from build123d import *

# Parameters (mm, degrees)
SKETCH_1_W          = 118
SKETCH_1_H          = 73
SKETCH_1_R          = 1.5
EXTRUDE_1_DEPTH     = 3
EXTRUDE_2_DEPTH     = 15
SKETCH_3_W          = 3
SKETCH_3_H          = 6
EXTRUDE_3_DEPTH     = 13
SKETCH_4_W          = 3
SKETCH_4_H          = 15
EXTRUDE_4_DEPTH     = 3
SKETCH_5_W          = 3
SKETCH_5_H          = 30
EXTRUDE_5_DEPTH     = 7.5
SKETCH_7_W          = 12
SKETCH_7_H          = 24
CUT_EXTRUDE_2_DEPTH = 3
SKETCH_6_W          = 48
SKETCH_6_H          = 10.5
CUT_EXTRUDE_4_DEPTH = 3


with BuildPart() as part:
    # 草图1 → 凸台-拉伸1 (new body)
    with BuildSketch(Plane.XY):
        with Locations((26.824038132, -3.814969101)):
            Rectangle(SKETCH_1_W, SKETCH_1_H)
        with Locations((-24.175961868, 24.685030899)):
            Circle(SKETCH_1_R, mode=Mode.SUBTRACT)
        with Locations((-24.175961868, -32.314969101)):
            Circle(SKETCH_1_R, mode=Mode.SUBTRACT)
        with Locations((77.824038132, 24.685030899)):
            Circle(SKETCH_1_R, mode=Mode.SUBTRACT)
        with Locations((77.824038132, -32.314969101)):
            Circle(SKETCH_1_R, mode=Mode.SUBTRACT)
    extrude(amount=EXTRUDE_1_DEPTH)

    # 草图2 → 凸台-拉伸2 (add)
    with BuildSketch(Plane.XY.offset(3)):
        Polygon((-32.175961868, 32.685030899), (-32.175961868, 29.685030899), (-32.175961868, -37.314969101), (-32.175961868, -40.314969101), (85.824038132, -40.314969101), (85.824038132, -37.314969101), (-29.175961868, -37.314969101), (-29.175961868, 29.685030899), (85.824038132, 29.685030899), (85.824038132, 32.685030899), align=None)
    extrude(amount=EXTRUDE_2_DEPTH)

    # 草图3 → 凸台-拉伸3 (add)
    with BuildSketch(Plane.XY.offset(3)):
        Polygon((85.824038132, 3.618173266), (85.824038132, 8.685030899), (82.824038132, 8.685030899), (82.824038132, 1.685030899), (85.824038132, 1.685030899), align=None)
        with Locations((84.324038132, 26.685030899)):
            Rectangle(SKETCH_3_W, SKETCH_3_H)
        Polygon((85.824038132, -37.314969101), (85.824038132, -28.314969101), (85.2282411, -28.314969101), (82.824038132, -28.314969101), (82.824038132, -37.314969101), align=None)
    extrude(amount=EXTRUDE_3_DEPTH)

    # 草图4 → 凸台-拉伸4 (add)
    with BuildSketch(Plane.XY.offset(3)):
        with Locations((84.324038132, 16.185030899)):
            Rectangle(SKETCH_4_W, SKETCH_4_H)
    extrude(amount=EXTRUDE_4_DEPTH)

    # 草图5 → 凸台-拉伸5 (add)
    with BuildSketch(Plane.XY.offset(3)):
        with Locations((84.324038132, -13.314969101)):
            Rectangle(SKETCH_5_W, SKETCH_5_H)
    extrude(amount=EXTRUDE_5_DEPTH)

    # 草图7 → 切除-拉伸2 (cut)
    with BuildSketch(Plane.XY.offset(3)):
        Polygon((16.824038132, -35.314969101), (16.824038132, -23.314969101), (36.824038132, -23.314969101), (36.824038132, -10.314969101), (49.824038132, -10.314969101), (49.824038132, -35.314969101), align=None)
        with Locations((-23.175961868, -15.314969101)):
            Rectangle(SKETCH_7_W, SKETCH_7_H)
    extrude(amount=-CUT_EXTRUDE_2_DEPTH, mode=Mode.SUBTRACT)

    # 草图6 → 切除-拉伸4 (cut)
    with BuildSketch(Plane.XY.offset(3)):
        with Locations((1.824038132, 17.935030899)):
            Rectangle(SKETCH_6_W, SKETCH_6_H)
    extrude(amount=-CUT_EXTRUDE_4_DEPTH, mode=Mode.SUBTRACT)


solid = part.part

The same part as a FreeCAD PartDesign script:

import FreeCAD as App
import Part
import Sketcher
Q = App.Units.Quantity

doc = App.newDocument("Part")
params = doc.addObject("Spreadsheet::Sheet", "Params")
for row, (alias, value) in enumerate([
    ("sketch1_diameter", "3 mm"),
    ("sketch1_width", "118 mm"),
    ("sketch1_height", "73 mm"),
    ("pad1_length", "3 mm"),
    ("sketch2_width", "118 mm"),
    ("sketch2_width2", "115 mm"),
    ("sketch2_height", "73 mm"),
    ("sketch2_height2", "3 mm"),
    ("pad2_length", "15 mm"),
    ("sketch3_width", "3 mm"),
    ("sketch3_height", "7 mm"),
    ("sketch3_height2", "6 mm"),
    ("sketch3_height3", "9 mm"),
    ("pad3_length", "13 mm"),
    ("sketch4_width", "3 mm"),
    ("sketch4_height", "15 mm"),
    ("pad4_length", "3 mm"),
    ("sketch5_width", "3 mm"),
    ("sketch5_height", "30 mm"),
    ("pad5_length", "7.5 mm"),
    ("sketch6_width", "33 mm"),
    ("sketch6_width2", "13 mm"),
    ("sketch6_width3", "12 mm"),
    ("sketch6_height", "24 mm"),
    ("pocket1_length", "3 mm"),
    ("sketch7_width", "48 mm"),
    ("sketch7_height", "10.5 mm"),
    ("pocket2_length", "3 mm"),
], start=1):
    params.set(f"A{row}", alias)
    params.set(f"B{row}", "=" + value)
    params.setAlias(f"B{row}", alias)

body = doc.addObject("PartDesign::Body", "Body")

sketch1 = body.newObject("Sketcher::SketchObject", "Sketch")
sketch1.AttachmentSupport = (doc.getObject("XY_Plane"), [""])
sketch1.MapMode = "FlatFace"
sketch1.addGeometry([
    Part.LineSegment(App.Vector(-32.2, 32.7, 0), App.Vector(-32.2, -40.3, 0)),
    Part.LineSegment(App.Vector(-32.2, -40.3, 0), App.Vector(85.8, -40.3, 0)),
    Part.LineSegment(App.Vector(85.8, -40.3, 0), App.Vector(85.8, 32.7, 0)),
    Part.LineSegment(App.Vector(85.8, 32.7, 0), App.Vector(-32.2, 32.7, 0)),
    Part.Circle(App.Vector(-24.2, -32.3, 0), App.Vector(0, 0, 1), 1.5),
    Part.Circle(App.Vector(77.8, -32.3, 0), App.Vector(0, 0, 1), 1.5),
    Part.Circle(App.Vector(-24.2, 24.7, 0), App.Vector(0, 0, 1), 1.5),
    Part.Circle(App.Vector(77.8, 24.7, 0), App.Vector(0, 0, 1), 1.5),
], False)
sketch1.addConstraint([
    Sketcher.Constraint("Coincident", 0, 2, 1, 1),
    Sketcher.Constraint("Coincident", 1, 2, 2, 1),
    Sketcher.Constraint("Coincident", 2, 2, 3, 1),
    Sketcher.Constraint("Coincident", 3, 2, 0, 1),
    Sketcher.Constraint("Vertical", 0),
    Sketcher.Constraint("Horizontal", 1),
    Sketcher.Constraint("Vertical", 2),
    Sketcher.Constraint("Horizontal", 3),
    Sketcher.Constraint("Equal", 4, 5),
    Sketcher.Constraint("Equal", 5, 6),
    Sketcher.Constraint("Equal", 6, 7),
    Sketcher.Constraint("Horizontal", 4, 3, 5, 3),
    Sketcher.Constraint("Horizontal", 6, 3, 7, 3),
    Sketcher.Constraint("Vertical", 4, 3, 6, 3),
    Sketcher.Constraint("Vertical", 5, 3, 7, 3),
    Sketcher.Constraint("Diameter", 4, Q("3 mm")),
    Sketcher.Constraint("DistanceX", 1, 1, 1, 2, Q("118 mm")),
    Sketcher.Constraint("DistanceY", 0, 2, 0, 1, Q("73 mm")),
    Sketcher.Constraint("DistanceX", 4, 3, 5, 3, Q("102 mm")),
    Sketcher.Constraint("DistanceY", 4, 3, 6, 3, Q("57 mm")),
    Sketcher.Constraint("DistanceX", 0, 2, 4, 3, Q("8 mm")),
    Sketcher.Constraint("DistanceY", 0, 2, 4, 3, Q("8 mm")),
    Sketcher.Constraint("DistanceX", 4, 3, -1, 1, Q("24.175962 mm")),
    Sketcher.Constraint("DistanceY", 4, 3, -1, 1, Q("32.314969 mm")),
])
sketch1.setExpression("Constraints[15]", "Params.sketch1_diameter")
sketch1.setExpression("Constraints[16]", "Params.sketch1_width")
sketch1.setExpression("Constraints[17]", "Params.sketch1_height")
pad1 = body.newObject("PartDesign::Pad", "Pad")
pad1.Profile = sketch1
pad1.setExpression("Length", "Params.pad1_length")

sketch2 = body.newObject("Sketcher::SketchObject", "Sketch001")
sketch2.AttachmentSupport = (doc.getObject("XY_Plane"), [""])
sketch2.MapMode = "FlatFace"
sketch2.AttachmentOffset = App.Placement(App.Vector(0, 0, 3), App.Rotation())
sketch2.addGeometry([
    Part.LineSegment(App.Vector(-32.2, 32.7, 0), App.Vector(-32.2, -40.3, 0)),
    Part.LineSegment(App.Vector(-32.2, -40.3, 0), App.Vector(85.8, -40.3, 0)),
    Part.LineSegment(App.Vector(85.8, -40.3, 0), App.Vector(85.8, -37.3, 0)),
    Part.LineSegment(App.Vector(85.8, -37.3, 0), App.Vector(-29.2, -37.3, 0)),
    Part.LineSegment(App.Vector(-29.2, -37.3, 0), App.Vector(-29.2, 29.7, 0)),
    Part.LineSegment(App.Vector(-29.2, 29.7, 0), App.Vector(85.8, 29.7, 0)),
    Part.LineSegment(App.Vector(85.8, 29.7, 0), App.Vector(85.8, 32.7, 0)),
    Part.LineSegment(App.Vector(85.8, 32.7, 0), App.Vector(-32.2, 32.7, 0)),
], False)
sketch2.addConstraint([
    Sketcher.Constraint("Coincident", 0, 2, 1, 1),
    Sketcher.Constraint("Coincident", 1, 2, 2, 1),
    Sketcher.Constraint("Coincident", 2, 2, 3, 1),
    Sketcher.Constraint("Coincident", 3, 2, 4, 1),
    Sketcher.Constraint("Coincident", 4, 2, 5, 1),
    Sketcher.Constraint("Coincident", 5, 2, 6, 1),
    Sketcher.Constraint("Coincident", 6, 2, 7, 1),
    Sketcher.Constraint("Coincident", 7, 2, 0, 1),
    Sketcher.Constraint("Vertical", 0),
    Sketcher.Constraint("Horizontal", 1),
    Sketcher.Constraint("Vertical", 2),
    Sketcher.Constraint("Horizontal", 3),
    Sketcher.Constraint("Vertical", 4),
    Sketcher.Constraint("Horizontal", 5),
    Sketcher.Constraint("Vertical", 6),
    Sketcher.Constraint("Horizontal", 7),
    Sketcher.Constraint("Vertical", 2, 2, 5, 2),
    Sketcher.Constraint("Equal", 2, 6),
    Sketcher.Constraint("DistanceX", 1, 1, 1, 2, Q("118 mm")),
    Sketcher.Constraint("DistanceX", 3, 2, 3, 1, Q("115 mm")),
    Sketcher.Constraint("DistanceY", 0, 2, 0, 1, Q("73 mm")),
    Sketcher.Constraint("DistanceY", 2, 1, 2, 2, Q("3 mm")),
    Sketcher.Constraint("DistanceX", 0, 2, -1, 1, Q("32.175962 mm")),
    Sketcher.Constraint("DistanceY", 0, 2, -1, 1, Q("40.314969 mm")),
])
sketch2.setExpression("Constraints[18]", "Params.sketch2_width")
sketch2.setExpression("Constraints[19]", "Params.sketch2_width2")
sketch2.setExpression("Constraints[20]", "Params.sketch2_height")
sketch2.setExpression("Constraints[21]", "Params.sketch2_height2")
pad2 = body.newObject("PartDesign::Pad", "Pad001")
pad2.Profile = sketch2
pad2.setExpression("Length", "Params.pad2_length")

sketch3 = body.newObject("Sketcher::SketchObject", "Sketch002")
sketch3.AttachmentSupport = (doc.getObject("XY_Plane"), [""])
sketch3.MapMode = "FlatFace"
sketch3.AttachmentOffset = App.Placement(App.Vector(0, 0, 3), App.Rotation())
sketch3.addGeometry([
    Part.LineSegment(App.Vector(85.8, 8.7, 0), App.Vector(82.8, 8.7, 0)),
    Part.LineSegment(App.Vector(82.8, 8.7, 0), App.Vector(82.8, 1.7, 0)),
    Part.LineSegment(App.Vector(82.8, 1.7, 0), App.Vector(85.8, 1.7, 0)),
    Part.LineSegment(App.Vector(85.8, 1.7, 0), App.Vector(85.8, 8.7, 0)),
    Part.LineSegment(App.Vector(82.8, 29.7, 0), App.Vector(82.8, 23.7, 0)),
    Part.LineSegment(App.Vector(82.8, 23.7, 0), App.Vector(85.8, 23.7, 0)),
    Part.LineSegment(App.Vector(85.8, 23.7, 0), App.Vector(85.8, 29.7, 0)),
    Part.LineSegment(App.Vector(85.8, 29.7, 0), App.Vector(82.8, 29.7, 0)),
    Part.LineSegment(App.Vector(85.8, -37.3, 0), App.Vector(85.8, -28.3, 0)),
    Part.LineSegment(App.Vector(85.8, -28.3, 0), App.Vector(82.8, -28.3, 0)),
    Part.LineSegment(App.Vector(82.8, -28.3, 0), App.Vector(82.8, -37.3, 0)),
    Part.LineSegment(App.Vector(82.8, -37.3, 0), App.Vector(85.8, -37.3, 0)),
], False)
sketch3.addConstraint([
    Sketcher.Constraint("Coincident", 0, 2, 1, 1),
    Sketcher.Constraint("Coincident", 1, 2, 2, 1),
    Sketcher.Constraint("Coincident", 2, 2, 3, 1),
    Sketcher.Constraint("Coincident", 3, 2, 0, 1),
    Sketcher.Constraint("Coincident", 4, 2, 5, 1),
    Sketcher.Constraint("Coincident", 5, 2, 6, 1),
    Sketcher.Constraint("Coincident", 6, 2, 7, 1),
    Sketcher.Constraint("Coincident", 7, 2, 4, 1),
    Sketcher.Constraint("Coincident", 8, 2, 9, 1),
    Sketcher.Constraint("Coincident", 9, 2, 10, 1),
    Sketcher.Constraint("Coincident", 10, 2, 11, 1),
    Sketcher.Constraint("Coincident", 11, 2, 8, 1),
    Sketcher.Constraint("Horizontal", 0),
    Sketcher.Constraint("Vertical", 1),
    Sketcher.Constraint("Horizontal", 2),
    Sketcher.Constraint("Vertical", 3),
    Sketcher.Constraint("Vertical", 4),
    Sketcher.Constraint("Horizontal", 5),
    Sketcher.Constraint("Vertical", 6),
    Sketcher.Constraint("Horizontal", 7),
    Sketcher.Constraint("Vertical", 8),
    Sketcher.Constraint("Horizontal", 9),
    Sketcher.Constraint("Vertical", 10),
    Sketcher.Constraint("Horizontal", 11),
    Sketcher.Constraint("Vertical", 1, 2, 4, 2),
    Sketcher.Constraint("Vertical", 3, 2, 5, 2),
    Sketcher.Constraint("Vertical", 6, 2, 8, 2),
    Sketcher.Constraint("Vertical", 7, 2, 9, 2),
    Sketcher.Constraint("DistanceX", 0, 2, 0, 1, Q("3 mm")),
    Sketcher.Constraint("DistanceY", 1, 2, 1, 1, Q("7 mm")),
    Sketcher.Constraint("DistanceY", 4, 2, 4, 1, Q("6 mm")),
    Sketcher.Constraint("DistanceY", 8, 1, 8, 2, Q("9 mm")),
    Sketcher.Constraint("DistanceY", 0, 2, 4, 2, Q("15 mm")),
    Sketcher.Constraint("DistanceY", 8, 2, 2, 2, Q("30 mm")),
    Sketcher.Constraint("DistanceX", -1, 1, 0, 2, Q("82.824038 mm")),
    Sketcher.Constraint("DistanceY", -1, 1, 0, 2, Q("8.685031 mm")),
])
sketch3.setExpression("Constraints[28]", "Params.sketch3_width")
sketch3.setExpression("Constraints[29]", "Params.sketch3_height")
sketch3.setExpression("Constraints[30]", "Params.sketch3_height2")
sketch3.setExpression("Constraints[31]", "Params.sketch3_height3")
pad3 = body.newObject("PartDesign::Pad", "Pad002")
pad3.Profile = sketch3
pad3.setExpression("Length", "Params.pad3_length")

sketch4 = body.newObject("Sketcher::SketchObject", "Sketch003")
sketch4.AttachmentSupport = (doc.getObject("XY_Plane"), [""])
sketch4.MapMode = "FlatFace"
sketch4.AttachmentOffset = App.Placement(App.Vector(0, 0, 3), App.Rotation())
sketch4.addGeometry([
    Part.LineSegment(App.Vector(82.8, 23.7, 0), App.Vector(82.8, 8.7, 0)),
    Part.LineSegment(App.Vector(82.8, 8.7, 0), App.Vector(85.8, 8.7, 0)),
    Part.LineSegment(App.Vector(85.8, 8.7, 0), App.Vector(85.8, 23.7, 0)),
    Part.LineSegment(App.Vector(85.8, 23.7, 0), App.Vector(82.8, 23.7, 0)),
], False)
sketch4.addConstraint([
    Sketcher.Constraint("Coincident", 0, 2, 1, 1),
    Sketcher.Constraint("Coincident", 1, 2, 2, 1),
    Sketcher.Constraint("Coincident", 2, 2, 3, 1),
    Sketcher.Constraint("Coincident", 3, 2, 0, 1),
    Sketcher.Constraint("Vertical", 0),
    Sketcher.Constraint("Horizontal", 1),
    Sketcher.Constraint("Vertical", 2),
    Sketcher.Constraint("Horizontal", 3),
    Sketcher.Constraint("DistanceX", 1, 1, 1, 2, Q("3 mm")),
    Sketcher.Constraint("DistanceY", 0, 2, 0, 1, Q("15 mm")),
    Sketcher.Constraint("DistanceX", -1, 1, 0, 2, Q("82.824038 mm")),
    Sketcher.Constraint("DistanceY", -1, 1, 0, 2, Q("8.685031 mm")),
])
sketch4.setExpression("Constraints[8]", "Params.sketch4_width")
sketch4.setExpression("Constraints[9]", "Params.sketch4_height")
pad4 = body.newObject("PartDesign::Pad", "Pad003")
pad4.Profile = sketch4
pad4.setExpression("Length", "Params.pad4_length")

sketch5 = body.newObject("Sketcher::SketchObject", "Sketch004")
sketch5.AttachmentSupport = (doc.getObject("XY_Plane"), [""])
sketch5.MapMode = "FlatFace"
sketch5.AttachmentOffset = App.Placement(App.Vector(0, 0, 3), App.Rotation())
sketch5.addGeometry([
    Part.LineSegment(App.Vector(82.8, 1.7, 0), App.Vector(82.8, -28.3, 0)),
    Part.LineSegment(App.Vector(82.8, -28.3, 0), App.Vector(85.8, -28.3, 0)),
    Part.LineSegment(App.Vector(85.8, -28.3, 0), App.Vector(85.8, 1.7, 0)),
    Part.LineSegment(App.Vector(85.8, 1.7, 0), App.Vector(82.8, 1.7, 0)),
], False)
sketch5.addConstraint([
    Sketcher.Constraint("Coincident", 0, 2, 1, 1),
    Sketcher.Constraint("Coincident", 1, 2, 2, 1),
    Sketcher.Constraint("Coincident", 2, 2, 3, 1),
    Sketcher.Constraint("Coincident", 3, 2, 0, 1),
    Sketcher.Constraint("Vertical", 0),
    Sketcher.Constraint("Horizontal", 1),
    Sketcher.Constraint("Vertical", 2),
    Sketcher.Constraint("Horizontal", 3),
    Sketcher.Constraint("DistanceX", 1, 1, 1, 2, Q("3 mm")),
    Sketcher.Constraint("DistanceY", 0, 2, 0, 1, Q("30 mm")),
    Sketcher.Constraint("DistanceX", -1, 1, 0, 2, Q("82.824038 mm")),
    Sketcher.Constraint("DistanceY", 0, 2, -1, 1, Q("28.314969 mm")),
])
sketch5.setExpression("Constraints[8]", "Params.sketch5_width")
sketch5.setExpression("Constraints[9]", "Params.sketch5_height")
pad5 = body.newObject("PartDesign::Pad", "Pad004")
pad5.Profile = sketch5
pad5.setExpression("Length", "Params.pad5_length")

sketch6 = body.newObject("Sketcher::SketchObject", "Sketch005")
sketch6.AttachmentSupport = (doc.getObject("XY_Plane"), [""])
sketch6.MapMode = "FlatFace"
sketch6.AttachmentOffset = App.Placement(App.Vector(0, 0, 3), App.Rotation())
sketch6.addGeometry([
    Part.LineSegment(App.Vector(17, -23, 0), App.Vector(17, -35, 0)),
    Part.LineSegment(App.Vector(17, -35, 0), App.Vector(50, -35, 0)),
    Part.LineSegment(App.Vector(50, -35, 0), App.Vector(50, -10, 0)),
    Part.LineSegment(App.Vector(50, -10, 0), App.Vector(37, -10, 0)),
    Part.LineSegment(App.Vector(37, -10, 0), App.Vector(37, -23, 0)),
    Part.LineSegment(App.Vector(37, -23, 0), App.Vector(17, -23, 0)),
    Part.LineSegment(App.Vector(-29, -3, 0), App.Vector(-29, -27, 0)),
    Part.LineSegment(App.Vector(-29, -27, 0), App.Vector(-17, -27, 0)),
    Part.LineSegment(App.Vector(-17, -27, 0), App.Vector(-17, -3, 0)),
    Part.LineSegment(App.Vector(-17, -3, 0), App.Vector(-29, -3, 0)),
], False)
sketch6.addConstraint([
    Sketcher.Constraint("Coincident", 0, 2, 1, 1),
    Sketcher.Constraint("Coincident", 1, 2, 2, 1),
    Sketcher.Constraint("Coincident", 2, 2, 3, 1),
    Sketcher.Constraint("Coincident", 3, 2, 4, 1),
    Sketcher.Constraint("Coincident", 4, 2, 5, 1),
    Sketcher.Constraint("Coincident", 5, 2, 0, 1),
    Sketcher.Constraint("Coincident", 6, 2, 7, 1),
    Sketcher.Constraint("Coincident", 7, 2, 8, 1),
    Sketcher.Constraint("Coincident", 8, 2, 9, 1),
    Sketcher.Constraint("Coincident", 9, 2, 6, 1),
    Sketcher.Constraint("Vertical", 0),
    Sketcher.Constraint("Horizontal", 1),
    Sketcher.Constraint("Vertical", 2),
    Sketcher.Constraint("Horizontal", 3),
    Sketcher.Constraint("Vertical", 4),
    Sketcher.Constraint("Horizontal", 5),
    Sketcher.Constraint("Vertical", 6),
    Sketcher.Constraint("Horizontal", 7),
    Sketcher.Constraint("Vertical", 8),
    Sketcher.Constraint("Horizontal", 9),
    Sketcher.Constraint("Equal", 9, 0),
    Sketcher.Constraint("Equal", 3, 4),
    Sketcher.Constraint("DistanceX", 1, 1, 1, 2, Q("33 mm")),
    Sketcher.Constraint("DistanceX", 3, 2, 3, 1, Q("13 mm")),
    Sketcher.Constraint("DistanceX", 7, 1, 7, 2, Q("12 mm")),
    Sketcher.Constraint("DistanceY", 6, 2, 6, 1, Q("24 mm")),
    Sketcher.Constraint("DistanceX", 6, 2, 5, 2, Q("46 mm")),
    Sketcher.Constraint("DistanceY", 6, 2, 5, 2, Q("4 mm")),
    Sketcher.Constraint("DistanceX", -1, 1, 0, 2, Q("16.824038 mm")),
    Sketcher.Constraint("DistanceY", 0, 2, -1, 1, Q("35.314969 mm")),
])
sketch6.setExpression("Constraints[22]", "Params.sketch6_width")
sketch6.setExpression("Constraints[23]", "Params.sketch6_width2")
sketch6.setExpression("Constraints[24]", "Params.sketch6_width3")
sketch6.setExpression("Constraints[25]", "Params.sketch6_height")
pocket1 = body.newObject("PartDesign::Pocket", "Pocket")
pocket1.Profile = sketch6
pocket1.setExpression("Length", "Params.pocket1_length")

sketch7 = body.newObject("Sketcher::SketchObject", "Sketch006")
sketch7.AttachmentSupport = (doc.getObject("XY_Plane"), [""])
sketch7.MapMode = "FlatFace"
sketch7.AttachmentOffset = App.Placement(App.Vector(0, 0, 3), App.Rotation())
sketch7.addGeometry([
    Part.LineSegment(App.Vector(-22, 23, 0), App.Vector(-22, 13, 0)),
    Part.LineSegment(App.Vector(-22, 13, 0), App.Vector(26, 13, 0)),
    Part.LineSegment(App.Vector(26, 13, 0), App.Vector(26, 23, 0)),
    Part.LineSegment(App.Vector(26, 23, 0), App.Vector(-22, 23, 0)),
], False)
sketch7.addConstraint([
    Sketcher.Constraint("Coincident", 0, 2, 1, 1),
    Sketcher.Constraint("Coincident", 1, 2, 2, 1),
    Sketcher.Constraint("Coincident", 2, 2, 3, 1),
    Sketcher.Constraint("Coincident", 3, 2, 0, 1),
    Sketcher.Constraint("Vertical", 0),
    Sketcher.Constraint("Horizontal", 1),
    Sketcher.Constraint("Vertical", 2),
    Sketcher.Constraint("Horizontal", 3),
    Sketcher.Constraint("DistanceX", 1, 1, 1, 2, Q("48 mm")),
    Sketcher.Constraint("DistanceY", 0, 2, 0, 1, Q("10.5 mm")),
    Sketcher.Constraint("DistanceX", 0, 2, -1, 1, Q("22.175962 mm")),
    Sketcher.Constraint("DistanceY", -1, 1, 0, 2, Q("12.685031 mm")),
])
sketch7.setExpression("Constraints[8]", "Params.sketch7_width")
sketch7.setExpression("Constraints[9]", "Params.sketch7_height")
pocket2 = body.newObject("PartDesign::Pocket", "Pocket001")
pocket2.Profile = sketch7
pocket2.setExpression("Length", "Params.pocket2_length")

doc.recompute()
